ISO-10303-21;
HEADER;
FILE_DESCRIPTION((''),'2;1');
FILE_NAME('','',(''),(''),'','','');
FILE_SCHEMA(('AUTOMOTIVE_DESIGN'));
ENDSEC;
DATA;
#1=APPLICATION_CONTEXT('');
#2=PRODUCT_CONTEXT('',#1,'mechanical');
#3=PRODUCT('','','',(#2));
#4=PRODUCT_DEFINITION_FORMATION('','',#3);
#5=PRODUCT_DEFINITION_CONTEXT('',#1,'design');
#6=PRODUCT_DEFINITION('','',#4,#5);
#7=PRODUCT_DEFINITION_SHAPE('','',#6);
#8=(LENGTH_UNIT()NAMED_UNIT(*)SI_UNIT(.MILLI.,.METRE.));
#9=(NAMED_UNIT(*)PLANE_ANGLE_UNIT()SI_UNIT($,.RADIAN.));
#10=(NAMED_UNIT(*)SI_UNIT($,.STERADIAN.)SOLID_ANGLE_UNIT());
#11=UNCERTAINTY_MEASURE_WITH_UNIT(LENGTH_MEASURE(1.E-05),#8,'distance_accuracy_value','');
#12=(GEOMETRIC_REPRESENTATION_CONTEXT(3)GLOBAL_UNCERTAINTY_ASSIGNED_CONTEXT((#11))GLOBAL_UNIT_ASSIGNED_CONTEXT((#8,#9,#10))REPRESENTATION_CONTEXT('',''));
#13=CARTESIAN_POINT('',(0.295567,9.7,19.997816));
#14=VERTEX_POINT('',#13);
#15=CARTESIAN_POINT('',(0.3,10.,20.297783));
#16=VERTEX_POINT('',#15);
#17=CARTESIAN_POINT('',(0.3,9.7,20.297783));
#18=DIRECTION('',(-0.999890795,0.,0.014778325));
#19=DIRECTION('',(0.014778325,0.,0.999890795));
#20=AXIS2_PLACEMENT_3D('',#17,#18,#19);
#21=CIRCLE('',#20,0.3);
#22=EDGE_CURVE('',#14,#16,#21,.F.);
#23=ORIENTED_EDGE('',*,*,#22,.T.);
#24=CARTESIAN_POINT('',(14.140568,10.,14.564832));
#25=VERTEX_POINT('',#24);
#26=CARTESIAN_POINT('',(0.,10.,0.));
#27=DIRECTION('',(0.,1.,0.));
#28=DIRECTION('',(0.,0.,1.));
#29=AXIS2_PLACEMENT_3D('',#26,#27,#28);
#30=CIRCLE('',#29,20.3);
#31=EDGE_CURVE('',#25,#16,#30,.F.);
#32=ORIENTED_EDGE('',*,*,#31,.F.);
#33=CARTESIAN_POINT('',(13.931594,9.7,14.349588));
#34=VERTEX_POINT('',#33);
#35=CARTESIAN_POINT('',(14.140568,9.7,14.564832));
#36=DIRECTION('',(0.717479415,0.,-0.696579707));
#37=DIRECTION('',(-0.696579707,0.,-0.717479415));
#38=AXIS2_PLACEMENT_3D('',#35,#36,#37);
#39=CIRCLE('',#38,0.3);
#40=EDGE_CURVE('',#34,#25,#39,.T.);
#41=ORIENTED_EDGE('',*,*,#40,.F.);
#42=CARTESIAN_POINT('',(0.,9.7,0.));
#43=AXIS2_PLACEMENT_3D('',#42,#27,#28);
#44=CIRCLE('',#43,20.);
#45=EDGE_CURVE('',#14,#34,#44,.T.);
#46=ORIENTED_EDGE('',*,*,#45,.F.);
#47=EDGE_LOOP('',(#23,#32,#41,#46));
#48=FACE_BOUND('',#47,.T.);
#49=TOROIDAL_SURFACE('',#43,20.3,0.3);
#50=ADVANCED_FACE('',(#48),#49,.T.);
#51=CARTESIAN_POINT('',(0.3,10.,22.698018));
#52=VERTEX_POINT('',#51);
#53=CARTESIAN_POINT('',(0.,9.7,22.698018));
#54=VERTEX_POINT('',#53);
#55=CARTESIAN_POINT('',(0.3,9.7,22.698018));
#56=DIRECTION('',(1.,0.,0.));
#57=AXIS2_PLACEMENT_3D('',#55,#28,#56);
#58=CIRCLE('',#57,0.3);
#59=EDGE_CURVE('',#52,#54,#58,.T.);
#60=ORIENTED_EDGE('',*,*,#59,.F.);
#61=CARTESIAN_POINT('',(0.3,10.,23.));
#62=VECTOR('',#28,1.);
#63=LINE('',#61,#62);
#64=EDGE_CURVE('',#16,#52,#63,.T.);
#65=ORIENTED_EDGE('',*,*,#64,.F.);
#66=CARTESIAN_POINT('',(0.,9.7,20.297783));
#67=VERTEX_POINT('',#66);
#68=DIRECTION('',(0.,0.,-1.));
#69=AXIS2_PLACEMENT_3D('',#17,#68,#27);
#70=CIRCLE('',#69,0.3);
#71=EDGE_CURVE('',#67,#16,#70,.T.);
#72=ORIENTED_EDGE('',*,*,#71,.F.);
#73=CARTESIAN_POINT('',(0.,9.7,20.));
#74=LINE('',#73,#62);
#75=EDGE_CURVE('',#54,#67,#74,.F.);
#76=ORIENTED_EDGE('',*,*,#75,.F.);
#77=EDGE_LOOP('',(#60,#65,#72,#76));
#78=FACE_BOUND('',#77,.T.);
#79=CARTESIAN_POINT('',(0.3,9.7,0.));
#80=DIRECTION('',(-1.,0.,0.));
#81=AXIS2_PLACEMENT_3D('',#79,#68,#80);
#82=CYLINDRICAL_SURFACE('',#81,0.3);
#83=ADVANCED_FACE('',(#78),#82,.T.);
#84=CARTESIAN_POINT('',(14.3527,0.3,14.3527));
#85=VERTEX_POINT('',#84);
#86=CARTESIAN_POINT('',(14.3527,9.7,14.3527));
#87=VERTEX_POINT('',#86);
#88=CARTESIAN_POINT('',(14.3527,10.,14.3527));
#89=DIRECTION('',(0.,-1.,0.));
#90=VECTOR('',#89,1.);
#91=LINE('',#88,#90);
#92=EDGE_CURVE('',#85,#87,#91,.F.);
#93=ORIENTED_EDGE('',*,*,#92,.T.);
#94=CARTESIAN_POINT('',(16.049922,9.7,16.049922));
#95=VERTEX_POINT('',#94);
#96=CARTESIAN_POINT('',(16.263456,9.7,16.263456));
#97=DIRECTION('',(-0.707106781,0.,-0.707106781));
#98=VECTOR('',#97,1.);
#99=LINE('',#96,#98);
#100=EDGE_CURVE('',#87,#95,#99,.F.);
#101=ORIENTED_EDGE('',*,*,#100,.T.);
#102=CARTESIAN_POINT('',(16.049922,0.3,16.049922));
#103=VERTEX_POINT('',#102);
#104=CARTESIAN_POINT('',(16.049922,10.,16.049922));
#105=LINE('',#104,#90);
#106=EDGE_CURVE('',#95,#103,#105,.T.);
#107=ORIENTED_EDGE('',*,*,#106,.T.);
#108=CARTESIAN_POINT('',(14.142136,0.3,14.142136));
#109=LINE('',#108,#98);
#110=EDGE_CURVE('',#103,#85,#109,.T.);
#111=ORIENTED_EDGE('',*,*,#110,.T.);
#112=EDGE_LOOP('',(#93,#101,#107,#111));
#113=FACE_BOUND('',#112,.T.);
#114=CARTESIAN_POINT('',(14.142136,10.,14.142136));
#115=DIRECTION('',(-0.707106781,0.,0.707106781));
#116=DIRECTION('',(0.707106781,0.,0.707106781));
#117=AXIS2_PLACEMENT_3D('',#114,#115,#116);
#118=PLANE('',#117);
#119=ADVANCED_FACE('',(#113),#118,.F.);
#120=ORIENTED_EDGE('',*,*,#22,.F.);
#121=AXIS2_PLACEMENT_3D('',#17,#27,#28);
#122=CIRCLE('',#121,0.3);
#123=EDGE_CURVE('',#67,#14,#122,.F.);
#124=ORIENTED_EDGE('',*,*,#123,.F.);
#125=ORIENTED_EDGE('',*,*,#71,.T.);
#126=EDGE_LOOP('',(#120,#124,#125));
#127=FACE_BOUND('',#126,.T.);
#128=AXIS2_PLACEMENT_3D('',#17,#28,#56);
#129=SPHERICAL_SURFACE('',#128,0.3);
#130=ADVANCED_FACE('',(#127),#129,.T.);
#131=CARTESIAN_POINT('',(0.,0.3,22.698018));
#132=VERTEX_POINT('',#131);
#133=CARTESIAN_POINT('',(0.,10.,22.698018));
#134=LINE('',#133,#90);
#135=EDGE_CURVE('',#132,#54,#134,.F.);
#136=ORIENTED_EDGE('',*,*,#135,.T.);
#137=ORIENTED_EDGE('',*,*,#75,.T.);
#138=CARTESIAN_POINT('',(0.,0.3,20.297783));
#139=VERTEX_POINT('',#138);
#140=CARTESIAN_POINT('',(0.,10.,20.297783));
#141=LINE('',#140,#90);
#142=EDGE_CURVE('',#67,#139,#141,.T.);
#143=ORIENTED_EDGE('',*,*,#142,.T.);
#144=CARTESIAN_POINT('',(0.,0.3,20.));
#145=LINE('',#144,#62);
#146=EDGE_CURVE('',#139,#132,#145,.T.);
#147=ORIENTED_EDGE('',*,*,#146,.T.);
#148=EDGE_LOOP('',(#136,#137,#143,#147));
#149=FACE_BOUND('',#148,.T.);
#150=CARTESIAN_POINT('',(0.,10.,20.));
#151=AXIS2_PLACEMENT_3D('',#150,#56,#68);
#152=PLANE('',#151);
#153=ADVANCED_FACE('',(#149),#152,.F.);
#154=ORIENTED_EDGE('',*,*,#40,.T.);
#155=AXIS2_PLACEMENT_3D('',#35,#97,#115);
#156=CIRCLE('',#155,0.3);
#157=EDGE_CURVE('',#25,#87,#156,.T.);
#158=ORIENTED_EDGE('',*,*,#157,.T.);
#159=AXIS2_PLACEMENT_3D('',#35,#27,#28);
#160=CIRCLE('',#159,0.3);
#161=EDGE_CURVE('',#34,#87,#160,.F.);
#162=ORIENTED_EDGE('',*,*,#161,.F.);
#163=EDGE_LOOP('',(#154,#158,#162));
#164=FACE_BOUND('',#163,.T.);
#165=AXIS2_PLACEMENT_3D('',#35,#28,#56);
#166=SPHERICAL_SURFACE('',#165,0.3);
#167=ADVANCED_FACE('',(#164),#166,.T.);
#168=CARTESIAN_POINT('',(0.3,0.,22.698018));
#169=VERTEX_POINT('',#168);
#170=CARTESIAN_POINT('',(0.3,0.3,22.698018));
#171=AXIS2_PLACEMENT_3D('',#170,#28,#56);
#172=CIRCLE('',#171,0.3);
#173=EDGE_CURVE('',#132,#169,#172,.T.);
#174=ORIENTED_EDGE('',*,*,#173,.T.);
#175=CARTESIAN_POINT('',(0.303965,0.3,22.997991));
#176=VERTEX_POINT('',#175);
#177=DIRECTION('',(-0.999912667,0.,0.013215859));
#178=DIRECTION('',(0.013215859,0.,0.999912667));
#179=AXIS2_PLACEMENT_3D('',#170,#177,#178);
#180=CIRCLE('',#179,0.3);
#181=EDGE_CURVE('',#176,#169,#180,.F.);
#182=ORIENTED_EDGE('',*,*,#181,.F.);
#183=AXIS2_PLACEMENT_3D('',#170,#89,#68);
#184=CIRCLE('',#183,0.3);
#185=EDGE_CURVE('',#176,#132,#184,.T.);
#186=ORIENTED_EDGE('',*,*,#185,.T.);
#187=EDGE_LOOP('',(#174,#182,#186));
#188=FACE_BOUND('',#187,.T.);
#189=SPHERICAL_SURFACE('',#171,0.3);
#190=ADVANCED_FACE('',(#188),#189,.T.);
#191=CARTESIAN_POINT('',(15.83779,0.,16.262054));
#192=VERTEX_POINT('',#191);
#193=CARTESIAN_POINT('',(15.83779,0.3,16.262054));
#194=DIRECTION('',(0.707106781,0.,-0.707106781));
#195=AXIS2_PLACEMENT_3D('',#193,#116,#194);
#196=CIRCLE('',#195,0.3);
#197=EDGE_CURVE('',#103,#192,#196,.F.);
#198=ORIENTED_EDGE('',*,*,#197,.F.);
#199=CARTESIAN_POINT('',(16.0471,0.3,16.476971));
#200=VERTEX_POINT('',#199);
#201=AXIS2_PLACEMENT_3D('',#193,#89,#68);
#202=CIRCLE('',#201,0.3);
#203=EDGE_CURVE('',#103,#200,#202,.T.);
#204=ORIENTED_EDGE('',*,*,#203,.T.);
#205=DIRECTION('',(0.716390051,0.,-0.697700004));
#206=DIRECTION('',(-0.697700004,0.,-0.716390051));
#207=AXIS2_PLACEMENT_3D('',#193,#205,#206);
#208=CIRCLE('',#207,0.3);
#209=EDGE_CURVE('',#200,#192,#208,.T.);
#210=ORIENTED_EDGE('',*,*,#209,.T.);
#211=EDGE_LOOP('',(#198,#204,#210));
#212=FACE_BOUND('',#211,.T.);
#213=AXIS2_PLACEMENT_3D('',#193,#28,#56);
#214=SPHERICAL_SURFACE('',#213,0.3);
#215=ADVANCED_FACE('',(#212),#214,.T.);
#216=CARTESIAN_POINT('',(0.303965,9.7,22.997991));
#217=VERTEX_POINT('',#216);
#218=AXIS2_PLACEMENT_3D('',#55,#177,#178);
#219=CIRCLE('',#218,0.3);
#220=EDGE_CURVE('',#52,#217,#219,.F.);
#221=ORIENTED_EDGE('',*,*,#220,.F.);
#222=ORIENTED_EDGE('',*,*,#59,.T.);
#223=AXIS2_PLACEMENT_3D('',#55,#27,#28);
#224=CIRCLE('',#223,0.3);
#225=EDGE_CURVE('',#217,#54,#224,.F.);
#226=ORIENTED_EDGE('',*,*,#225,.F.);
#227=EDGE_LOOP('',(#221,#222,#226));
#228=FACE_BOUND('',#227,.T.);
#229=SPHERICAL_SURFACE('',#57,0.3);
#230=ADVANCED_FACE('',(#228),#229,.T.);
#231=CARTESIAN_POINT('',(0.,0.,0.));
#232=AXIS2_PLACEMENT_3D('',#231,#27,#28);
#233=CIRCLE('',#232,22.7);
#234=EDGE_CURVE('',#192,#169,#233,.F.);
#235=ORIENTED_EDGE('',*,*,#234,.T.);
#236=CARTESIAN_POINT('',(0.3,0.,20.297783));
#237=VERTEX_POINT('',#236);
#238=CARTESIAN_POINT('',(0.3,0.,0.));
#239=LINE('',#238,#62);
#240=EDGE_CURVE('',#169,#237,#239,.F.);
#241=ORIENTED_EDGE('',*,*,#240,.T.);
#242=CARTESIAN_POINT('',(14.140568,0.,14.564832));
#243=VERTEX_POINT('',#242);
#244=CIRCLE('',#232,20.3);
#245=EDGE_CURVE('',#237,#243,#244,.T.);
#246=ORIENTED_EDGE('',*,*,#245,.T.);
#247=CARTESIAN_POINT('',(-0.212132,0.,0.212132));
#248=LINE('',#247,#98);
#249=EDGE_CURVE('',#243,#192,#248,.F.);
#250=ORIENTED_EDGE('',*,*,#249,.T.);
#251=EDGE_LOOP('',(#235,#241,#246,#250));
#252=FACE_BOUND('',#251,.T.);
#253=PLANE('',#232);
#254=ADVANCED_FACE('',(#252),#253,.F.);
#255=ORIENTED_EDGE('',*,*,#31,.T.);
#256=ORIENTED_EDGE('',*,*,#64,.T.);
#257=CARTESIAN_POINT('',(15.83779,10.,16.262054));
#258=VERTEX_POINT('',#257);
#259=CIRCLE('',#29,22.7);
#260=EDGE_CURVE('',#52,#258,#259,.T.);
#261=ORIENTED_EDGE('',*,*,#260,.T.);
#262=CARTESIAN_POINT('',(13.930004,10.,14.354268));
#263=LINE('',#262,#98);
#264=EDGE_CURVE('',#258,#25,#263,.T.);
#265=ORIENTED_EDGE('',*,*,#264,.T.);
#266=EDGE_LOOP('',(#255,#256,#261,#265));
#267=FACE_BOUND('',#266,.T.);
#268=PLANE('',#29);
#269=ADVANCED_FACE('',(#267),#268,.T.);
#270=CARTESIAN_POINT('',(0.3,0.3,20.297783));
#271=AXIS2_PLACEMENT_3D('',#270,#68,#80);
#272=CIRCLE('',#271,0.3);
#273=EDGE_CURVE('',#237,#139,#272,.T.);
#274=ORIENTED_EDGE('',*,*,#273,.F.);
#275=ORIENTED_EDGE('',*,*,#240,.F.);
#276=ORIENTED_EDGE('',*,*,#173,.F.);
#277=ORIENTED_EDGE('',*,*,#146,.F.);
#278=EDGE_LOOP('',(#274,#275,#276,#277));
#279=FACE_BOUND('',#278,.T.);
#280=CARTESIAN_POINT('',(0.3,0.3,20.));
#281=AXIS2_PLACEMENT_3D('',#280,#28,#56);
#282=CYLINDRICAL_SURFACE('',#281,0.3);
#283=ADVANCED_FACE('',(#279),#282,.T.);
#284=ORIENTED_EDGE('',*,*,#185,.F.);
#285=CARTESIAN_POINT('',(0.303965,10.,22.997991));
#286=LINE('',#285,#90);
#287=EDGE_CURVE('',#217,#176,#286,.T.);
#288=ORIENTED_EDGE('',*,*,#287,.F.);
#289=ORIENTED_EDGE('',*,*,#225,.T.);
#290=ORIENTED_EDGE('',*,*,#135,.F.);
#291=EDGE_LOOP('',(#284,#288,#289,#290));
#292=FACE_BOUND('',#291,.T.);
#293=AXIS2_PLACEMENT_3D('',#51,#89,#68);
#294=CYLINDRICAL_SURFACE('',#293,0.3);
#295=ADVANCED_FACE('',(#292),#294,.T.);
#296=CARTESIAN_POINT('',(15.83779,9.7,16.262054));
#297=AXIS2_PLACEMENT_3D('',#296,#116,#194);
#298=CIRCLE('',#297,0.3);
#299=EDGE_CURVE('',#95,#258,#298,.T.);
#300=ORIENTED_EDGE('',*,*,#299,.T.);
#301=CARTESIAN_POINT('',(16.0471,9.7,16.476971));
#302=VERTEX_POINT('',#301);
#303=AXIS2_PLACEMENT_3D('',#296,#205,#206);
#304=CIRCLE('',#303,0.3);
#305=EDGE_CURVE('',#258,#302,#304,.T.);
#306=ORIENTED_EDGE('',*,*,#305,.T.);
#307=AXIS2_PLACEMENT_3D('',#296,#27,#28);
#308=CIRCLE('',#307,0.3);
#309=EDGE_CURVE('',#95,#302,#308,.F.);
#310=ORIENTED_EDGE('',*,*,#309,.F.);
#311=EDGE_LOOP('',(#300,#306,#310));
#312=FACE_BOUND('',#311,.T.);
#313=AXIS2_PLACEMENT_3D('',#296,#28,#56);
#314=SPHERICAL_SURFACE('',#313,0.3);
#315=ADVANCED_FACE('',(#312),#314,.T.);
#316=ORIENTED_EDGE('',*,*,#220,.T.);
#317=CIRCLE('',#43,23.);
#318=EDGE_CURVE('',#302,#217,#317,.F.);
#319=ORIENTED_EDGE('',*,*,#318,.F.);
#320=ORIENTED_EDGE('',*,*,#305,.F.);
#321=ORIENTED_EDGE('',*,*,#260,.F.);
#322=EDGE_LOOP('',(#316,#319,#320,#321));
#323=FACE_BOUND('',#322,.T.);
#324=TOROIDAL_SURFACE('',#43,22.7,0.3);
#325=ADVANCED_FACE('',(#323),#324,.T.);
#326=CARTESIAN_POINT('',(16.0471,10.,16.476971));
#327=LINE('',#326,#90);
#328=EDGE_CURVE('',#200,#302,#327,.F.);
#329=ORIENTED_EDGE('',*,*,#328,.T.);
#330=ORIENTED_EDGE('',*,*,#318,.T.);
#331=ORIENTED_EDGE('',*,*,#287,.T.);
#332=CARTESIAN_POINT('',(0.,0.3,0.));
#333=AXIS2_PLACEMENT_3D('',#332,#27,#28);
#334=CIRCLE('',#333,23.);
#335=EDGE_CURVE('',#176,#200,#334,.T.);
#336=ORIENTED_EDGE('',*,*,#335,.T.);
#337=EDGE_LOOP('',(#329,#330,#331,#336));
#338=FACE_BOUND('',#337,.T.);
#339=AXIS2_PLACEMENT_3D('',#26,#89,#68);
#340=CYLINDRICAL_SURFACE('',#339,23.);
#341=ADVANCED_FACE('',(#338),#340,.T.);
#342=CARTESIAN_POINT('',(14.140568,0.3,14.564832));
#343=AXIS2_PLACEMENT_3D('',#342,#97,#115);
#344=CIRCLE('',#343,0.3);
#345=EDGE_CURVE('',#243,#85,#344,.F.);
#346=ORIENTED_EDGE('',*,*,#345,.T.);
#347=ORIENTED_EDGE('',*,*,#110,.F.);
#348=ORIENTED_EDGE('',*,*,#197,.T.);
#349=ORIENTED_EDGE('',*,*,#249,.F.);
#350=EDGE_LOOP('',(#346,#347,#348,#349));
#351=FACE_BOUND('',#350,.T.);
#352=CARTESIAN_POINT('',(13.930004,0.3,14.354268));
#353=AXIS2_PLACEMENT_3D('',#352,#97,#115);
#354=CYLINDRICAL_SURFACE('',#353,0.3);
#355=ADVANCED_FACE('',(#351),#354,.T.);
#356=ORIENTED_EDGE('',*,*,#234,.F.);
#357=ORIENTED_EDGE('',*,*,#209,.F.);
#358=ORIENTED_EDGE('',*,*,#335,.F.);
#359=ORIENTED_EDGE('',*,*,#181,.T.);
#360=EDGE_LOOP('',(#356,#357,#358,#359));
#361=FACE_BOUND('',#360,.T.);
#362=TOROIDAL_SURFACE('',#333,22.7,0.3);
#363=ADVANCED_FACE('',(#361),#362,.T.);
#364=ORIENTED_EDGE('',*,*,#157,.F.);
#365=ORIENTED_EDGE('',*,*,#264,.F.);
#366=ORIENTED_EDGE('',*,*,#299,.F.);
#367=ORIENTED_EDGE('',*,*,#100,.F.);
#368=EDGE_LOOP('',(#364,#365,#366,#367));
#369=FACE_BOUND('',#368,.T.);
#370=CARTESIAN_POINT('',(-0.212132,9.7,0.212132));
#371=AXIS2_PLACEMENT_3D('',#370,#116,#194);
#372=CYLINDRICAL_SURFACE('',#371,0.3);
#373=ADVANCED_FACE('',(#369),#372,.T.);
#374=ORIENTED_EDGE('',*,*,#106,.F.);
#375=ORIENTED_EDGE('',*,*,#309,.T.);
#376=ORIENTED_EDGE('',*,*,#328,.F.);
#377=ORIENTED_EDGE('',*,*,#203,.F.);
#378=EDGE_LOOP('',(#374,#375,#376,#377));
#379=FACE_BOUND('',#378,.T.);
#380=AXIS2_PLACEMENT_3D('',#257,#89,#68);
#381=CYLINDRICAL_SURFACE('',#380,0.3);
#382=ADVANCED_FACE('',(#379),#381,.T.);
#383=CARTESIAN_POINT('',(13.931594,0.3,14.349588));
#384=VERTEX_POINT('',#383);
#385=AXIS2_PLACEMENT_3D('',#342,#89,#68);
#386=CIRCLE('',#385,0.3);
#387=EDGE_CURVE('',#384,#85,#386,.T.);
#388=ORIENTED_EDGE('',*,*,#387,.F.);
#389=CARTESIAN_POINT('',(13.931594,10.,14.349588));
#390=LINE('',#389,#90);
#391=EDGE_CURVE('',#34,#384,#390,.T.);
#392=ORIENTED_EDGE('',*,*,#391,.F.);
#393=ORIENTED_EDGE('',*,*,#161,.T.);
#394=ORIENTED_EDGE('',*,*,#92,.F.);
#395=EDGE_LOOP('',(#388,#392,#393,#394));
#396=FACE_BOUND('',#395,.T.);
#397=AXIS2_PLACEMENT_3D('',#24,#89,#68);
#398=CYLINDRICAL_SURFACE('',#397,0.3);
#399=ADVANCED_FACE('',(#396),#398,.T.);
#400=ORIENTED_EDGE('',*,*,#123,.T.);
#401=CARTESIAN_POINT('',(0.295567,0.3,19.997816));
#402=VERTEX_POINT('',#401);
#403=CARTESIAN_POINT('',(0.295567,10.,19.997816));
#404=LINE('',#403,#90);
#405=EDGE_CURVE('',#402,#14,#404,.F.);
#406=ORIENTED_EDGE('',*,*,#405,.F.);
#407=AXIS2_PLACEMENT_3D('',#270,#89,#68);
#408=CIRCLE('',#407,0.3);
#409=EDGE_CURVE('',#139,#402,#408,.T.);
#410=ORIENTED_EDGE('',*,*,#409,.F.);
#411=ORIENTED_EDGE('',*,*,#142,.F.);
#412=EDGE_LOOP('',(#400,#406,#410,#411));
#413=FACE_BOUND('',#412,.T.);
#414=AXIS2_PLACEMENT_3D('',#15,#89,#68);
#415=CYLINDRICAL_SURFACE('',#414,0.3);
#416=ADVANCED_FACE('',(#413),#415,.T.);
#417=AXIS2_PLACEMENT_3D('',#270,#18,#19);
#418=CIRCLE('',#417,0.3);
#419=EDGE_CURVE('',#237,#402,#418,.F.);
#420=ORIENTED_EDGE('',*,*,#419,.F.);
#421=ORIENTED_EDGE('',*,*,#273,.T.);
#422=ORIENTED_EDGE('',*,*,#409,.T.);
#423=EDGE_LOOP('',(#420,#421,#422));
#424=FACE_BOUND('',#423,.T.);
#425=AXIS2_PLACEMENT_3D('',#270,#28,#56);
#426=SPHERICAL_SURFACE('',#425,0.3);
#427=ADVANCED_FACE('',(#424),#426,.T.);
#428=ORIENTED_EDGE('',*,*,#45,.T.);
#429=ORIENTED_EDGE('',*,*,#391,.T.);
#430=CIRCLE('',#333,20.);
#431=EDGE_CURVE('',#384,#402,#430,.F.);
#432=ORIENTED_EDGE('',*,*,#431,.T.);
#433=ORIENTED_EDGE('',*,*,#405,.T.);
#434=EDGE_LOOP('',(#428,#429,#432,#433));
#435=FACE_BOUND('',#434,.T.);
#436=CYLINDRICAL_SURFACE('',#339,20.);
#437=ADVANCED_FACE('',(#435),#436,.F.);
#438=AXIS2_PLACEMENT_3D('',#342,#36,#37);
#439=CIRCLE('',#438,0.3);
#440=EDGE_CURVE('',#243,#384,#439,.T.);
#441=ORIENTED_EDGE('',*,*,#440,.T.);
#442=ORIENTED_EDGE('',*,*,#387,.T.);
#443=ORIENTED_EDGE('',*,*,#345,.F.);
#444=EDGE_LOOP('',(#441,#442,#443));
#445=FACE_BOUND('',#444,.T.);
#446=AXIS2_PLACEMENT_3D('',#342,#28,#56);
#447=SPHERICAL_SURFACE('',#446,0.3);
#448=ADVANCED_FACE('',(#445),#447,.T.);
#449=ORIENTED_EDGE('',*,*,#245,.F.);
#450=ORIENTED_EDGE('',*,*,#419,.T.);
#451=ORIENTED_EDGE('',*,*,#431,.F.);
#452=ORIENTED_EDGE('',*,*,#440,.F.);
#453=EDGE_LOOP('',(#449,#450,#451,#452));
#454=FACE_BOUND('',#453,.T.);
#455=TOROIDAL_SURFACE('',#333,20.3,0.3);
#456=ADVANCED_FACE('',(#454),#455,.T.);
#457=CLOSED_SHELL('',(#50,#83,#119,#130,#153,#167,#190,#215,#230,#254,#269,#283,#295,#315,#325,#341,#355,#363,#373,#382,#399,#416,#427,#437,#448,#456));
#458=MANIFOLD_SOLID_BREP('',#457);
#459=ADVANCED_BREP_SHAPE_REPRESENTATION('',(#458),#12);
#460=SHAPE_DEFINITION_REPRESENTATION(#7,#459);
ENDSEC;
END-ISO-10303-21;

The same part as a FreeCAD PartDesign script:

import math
import FreeCAD as App
import Part
import Sketcher
from FreeCAD import Vector
Q = App.Units.Quantity

doc = App.newDocument("Part")
params = doc.addObject("Spreadsheet::Sheet", "Params")
for row, (alias, value) in enumerate([
    ("sketch1_radius", "20 mm"),
    ("sketch1_radius2", "23 mm"),
    ("pad1_length", "10 mm"),
    ("fillet_radius", "0.3 mm"),
], start=1):
    params.set(f"A{row}", alias)
    params.set(f"B{row}", "=" + value)
    params.setAlias(f"B{row}", alias)

body = doc.addObject("PartDesign::Body", "Body")

sketch1 = body.newObject("Sketcher::SketchObject", "Sketch")
sketch1.AttachmentSupport = (doc.getObject("XZ_Plane"), [""])
sketch1.MapMode = "FlatFace"
sketch1.addGeometry([
    Part.LineSegment(Vector(16.263456, 16.263456, 0), Vector(14.142136, 14.142136, 0)),
    Part.ArcOfCircle(Part.Circle(Vector(0, 0, 0), Vector(0, 0, 1), 20), math.radians(45), math.radians(90)),
    Part.LineSegment(Vector(0, 20, 0), Vector(0, 23, 0)),
    Part.ArcOfCircle(Part.Circle(Vector(0, 0, 0), Vector(0, 0, 1), 23), math.radians(45), math.radians(90)),
], False)
sketch1.addConstraint([
    Sketcher.Constraint("Coincident", 0, 2, 1, 1),
    Sketcher.Constraint("Coincident", 1, 2, 2, 1),
    Sketcher.Constraint("Coincident", 2, 2, 3, 2),
    Sketcher.Constraint("Coincident", 3, 1, 0, 1),
    Sketcher.Constraint("Vertical", 2),
    Sketcher.Constraint("Coincident", 1, 3, -1, 1),
    Sketcher.Constraint("Coincident", 3, 3, -1, 1),
    Sketcher.Constraint("PointOnObject", 1, 2, -2),
    Sketcher.Constraint("Radius", 1, 20.0),
    Sketcher.Constraint("Radius", 3, 23.0),
    Sketcher.Constraint("Angle", 0, Q("-135 deg")),
    Sketcher.Constraint("DistanceX", -1, 1, 0, 2, 14.142136),
])
sketch1.setExpression("Constraints[8]", "Params.sketch1_radius")
sketch1.setExpression("Constraints[9]", "Params.sketch1_radius2")
pad1 = body.newObject("PartDesign::Pad", "Pad")
pad1.Profile = sketch1
pad1.setExpression("Length", "Params.pad1_length")
pad1.Reversed = True
doc.recompute()

fillet = body.newObject("PartDesign::Fillet", "Fillet")
fillet.Base = (pad1, ["Edge1"])
fillet.UseAllEdges = True
fillet.setExpression("Radius", "Params.fillet_radius")

doc.recompute()
